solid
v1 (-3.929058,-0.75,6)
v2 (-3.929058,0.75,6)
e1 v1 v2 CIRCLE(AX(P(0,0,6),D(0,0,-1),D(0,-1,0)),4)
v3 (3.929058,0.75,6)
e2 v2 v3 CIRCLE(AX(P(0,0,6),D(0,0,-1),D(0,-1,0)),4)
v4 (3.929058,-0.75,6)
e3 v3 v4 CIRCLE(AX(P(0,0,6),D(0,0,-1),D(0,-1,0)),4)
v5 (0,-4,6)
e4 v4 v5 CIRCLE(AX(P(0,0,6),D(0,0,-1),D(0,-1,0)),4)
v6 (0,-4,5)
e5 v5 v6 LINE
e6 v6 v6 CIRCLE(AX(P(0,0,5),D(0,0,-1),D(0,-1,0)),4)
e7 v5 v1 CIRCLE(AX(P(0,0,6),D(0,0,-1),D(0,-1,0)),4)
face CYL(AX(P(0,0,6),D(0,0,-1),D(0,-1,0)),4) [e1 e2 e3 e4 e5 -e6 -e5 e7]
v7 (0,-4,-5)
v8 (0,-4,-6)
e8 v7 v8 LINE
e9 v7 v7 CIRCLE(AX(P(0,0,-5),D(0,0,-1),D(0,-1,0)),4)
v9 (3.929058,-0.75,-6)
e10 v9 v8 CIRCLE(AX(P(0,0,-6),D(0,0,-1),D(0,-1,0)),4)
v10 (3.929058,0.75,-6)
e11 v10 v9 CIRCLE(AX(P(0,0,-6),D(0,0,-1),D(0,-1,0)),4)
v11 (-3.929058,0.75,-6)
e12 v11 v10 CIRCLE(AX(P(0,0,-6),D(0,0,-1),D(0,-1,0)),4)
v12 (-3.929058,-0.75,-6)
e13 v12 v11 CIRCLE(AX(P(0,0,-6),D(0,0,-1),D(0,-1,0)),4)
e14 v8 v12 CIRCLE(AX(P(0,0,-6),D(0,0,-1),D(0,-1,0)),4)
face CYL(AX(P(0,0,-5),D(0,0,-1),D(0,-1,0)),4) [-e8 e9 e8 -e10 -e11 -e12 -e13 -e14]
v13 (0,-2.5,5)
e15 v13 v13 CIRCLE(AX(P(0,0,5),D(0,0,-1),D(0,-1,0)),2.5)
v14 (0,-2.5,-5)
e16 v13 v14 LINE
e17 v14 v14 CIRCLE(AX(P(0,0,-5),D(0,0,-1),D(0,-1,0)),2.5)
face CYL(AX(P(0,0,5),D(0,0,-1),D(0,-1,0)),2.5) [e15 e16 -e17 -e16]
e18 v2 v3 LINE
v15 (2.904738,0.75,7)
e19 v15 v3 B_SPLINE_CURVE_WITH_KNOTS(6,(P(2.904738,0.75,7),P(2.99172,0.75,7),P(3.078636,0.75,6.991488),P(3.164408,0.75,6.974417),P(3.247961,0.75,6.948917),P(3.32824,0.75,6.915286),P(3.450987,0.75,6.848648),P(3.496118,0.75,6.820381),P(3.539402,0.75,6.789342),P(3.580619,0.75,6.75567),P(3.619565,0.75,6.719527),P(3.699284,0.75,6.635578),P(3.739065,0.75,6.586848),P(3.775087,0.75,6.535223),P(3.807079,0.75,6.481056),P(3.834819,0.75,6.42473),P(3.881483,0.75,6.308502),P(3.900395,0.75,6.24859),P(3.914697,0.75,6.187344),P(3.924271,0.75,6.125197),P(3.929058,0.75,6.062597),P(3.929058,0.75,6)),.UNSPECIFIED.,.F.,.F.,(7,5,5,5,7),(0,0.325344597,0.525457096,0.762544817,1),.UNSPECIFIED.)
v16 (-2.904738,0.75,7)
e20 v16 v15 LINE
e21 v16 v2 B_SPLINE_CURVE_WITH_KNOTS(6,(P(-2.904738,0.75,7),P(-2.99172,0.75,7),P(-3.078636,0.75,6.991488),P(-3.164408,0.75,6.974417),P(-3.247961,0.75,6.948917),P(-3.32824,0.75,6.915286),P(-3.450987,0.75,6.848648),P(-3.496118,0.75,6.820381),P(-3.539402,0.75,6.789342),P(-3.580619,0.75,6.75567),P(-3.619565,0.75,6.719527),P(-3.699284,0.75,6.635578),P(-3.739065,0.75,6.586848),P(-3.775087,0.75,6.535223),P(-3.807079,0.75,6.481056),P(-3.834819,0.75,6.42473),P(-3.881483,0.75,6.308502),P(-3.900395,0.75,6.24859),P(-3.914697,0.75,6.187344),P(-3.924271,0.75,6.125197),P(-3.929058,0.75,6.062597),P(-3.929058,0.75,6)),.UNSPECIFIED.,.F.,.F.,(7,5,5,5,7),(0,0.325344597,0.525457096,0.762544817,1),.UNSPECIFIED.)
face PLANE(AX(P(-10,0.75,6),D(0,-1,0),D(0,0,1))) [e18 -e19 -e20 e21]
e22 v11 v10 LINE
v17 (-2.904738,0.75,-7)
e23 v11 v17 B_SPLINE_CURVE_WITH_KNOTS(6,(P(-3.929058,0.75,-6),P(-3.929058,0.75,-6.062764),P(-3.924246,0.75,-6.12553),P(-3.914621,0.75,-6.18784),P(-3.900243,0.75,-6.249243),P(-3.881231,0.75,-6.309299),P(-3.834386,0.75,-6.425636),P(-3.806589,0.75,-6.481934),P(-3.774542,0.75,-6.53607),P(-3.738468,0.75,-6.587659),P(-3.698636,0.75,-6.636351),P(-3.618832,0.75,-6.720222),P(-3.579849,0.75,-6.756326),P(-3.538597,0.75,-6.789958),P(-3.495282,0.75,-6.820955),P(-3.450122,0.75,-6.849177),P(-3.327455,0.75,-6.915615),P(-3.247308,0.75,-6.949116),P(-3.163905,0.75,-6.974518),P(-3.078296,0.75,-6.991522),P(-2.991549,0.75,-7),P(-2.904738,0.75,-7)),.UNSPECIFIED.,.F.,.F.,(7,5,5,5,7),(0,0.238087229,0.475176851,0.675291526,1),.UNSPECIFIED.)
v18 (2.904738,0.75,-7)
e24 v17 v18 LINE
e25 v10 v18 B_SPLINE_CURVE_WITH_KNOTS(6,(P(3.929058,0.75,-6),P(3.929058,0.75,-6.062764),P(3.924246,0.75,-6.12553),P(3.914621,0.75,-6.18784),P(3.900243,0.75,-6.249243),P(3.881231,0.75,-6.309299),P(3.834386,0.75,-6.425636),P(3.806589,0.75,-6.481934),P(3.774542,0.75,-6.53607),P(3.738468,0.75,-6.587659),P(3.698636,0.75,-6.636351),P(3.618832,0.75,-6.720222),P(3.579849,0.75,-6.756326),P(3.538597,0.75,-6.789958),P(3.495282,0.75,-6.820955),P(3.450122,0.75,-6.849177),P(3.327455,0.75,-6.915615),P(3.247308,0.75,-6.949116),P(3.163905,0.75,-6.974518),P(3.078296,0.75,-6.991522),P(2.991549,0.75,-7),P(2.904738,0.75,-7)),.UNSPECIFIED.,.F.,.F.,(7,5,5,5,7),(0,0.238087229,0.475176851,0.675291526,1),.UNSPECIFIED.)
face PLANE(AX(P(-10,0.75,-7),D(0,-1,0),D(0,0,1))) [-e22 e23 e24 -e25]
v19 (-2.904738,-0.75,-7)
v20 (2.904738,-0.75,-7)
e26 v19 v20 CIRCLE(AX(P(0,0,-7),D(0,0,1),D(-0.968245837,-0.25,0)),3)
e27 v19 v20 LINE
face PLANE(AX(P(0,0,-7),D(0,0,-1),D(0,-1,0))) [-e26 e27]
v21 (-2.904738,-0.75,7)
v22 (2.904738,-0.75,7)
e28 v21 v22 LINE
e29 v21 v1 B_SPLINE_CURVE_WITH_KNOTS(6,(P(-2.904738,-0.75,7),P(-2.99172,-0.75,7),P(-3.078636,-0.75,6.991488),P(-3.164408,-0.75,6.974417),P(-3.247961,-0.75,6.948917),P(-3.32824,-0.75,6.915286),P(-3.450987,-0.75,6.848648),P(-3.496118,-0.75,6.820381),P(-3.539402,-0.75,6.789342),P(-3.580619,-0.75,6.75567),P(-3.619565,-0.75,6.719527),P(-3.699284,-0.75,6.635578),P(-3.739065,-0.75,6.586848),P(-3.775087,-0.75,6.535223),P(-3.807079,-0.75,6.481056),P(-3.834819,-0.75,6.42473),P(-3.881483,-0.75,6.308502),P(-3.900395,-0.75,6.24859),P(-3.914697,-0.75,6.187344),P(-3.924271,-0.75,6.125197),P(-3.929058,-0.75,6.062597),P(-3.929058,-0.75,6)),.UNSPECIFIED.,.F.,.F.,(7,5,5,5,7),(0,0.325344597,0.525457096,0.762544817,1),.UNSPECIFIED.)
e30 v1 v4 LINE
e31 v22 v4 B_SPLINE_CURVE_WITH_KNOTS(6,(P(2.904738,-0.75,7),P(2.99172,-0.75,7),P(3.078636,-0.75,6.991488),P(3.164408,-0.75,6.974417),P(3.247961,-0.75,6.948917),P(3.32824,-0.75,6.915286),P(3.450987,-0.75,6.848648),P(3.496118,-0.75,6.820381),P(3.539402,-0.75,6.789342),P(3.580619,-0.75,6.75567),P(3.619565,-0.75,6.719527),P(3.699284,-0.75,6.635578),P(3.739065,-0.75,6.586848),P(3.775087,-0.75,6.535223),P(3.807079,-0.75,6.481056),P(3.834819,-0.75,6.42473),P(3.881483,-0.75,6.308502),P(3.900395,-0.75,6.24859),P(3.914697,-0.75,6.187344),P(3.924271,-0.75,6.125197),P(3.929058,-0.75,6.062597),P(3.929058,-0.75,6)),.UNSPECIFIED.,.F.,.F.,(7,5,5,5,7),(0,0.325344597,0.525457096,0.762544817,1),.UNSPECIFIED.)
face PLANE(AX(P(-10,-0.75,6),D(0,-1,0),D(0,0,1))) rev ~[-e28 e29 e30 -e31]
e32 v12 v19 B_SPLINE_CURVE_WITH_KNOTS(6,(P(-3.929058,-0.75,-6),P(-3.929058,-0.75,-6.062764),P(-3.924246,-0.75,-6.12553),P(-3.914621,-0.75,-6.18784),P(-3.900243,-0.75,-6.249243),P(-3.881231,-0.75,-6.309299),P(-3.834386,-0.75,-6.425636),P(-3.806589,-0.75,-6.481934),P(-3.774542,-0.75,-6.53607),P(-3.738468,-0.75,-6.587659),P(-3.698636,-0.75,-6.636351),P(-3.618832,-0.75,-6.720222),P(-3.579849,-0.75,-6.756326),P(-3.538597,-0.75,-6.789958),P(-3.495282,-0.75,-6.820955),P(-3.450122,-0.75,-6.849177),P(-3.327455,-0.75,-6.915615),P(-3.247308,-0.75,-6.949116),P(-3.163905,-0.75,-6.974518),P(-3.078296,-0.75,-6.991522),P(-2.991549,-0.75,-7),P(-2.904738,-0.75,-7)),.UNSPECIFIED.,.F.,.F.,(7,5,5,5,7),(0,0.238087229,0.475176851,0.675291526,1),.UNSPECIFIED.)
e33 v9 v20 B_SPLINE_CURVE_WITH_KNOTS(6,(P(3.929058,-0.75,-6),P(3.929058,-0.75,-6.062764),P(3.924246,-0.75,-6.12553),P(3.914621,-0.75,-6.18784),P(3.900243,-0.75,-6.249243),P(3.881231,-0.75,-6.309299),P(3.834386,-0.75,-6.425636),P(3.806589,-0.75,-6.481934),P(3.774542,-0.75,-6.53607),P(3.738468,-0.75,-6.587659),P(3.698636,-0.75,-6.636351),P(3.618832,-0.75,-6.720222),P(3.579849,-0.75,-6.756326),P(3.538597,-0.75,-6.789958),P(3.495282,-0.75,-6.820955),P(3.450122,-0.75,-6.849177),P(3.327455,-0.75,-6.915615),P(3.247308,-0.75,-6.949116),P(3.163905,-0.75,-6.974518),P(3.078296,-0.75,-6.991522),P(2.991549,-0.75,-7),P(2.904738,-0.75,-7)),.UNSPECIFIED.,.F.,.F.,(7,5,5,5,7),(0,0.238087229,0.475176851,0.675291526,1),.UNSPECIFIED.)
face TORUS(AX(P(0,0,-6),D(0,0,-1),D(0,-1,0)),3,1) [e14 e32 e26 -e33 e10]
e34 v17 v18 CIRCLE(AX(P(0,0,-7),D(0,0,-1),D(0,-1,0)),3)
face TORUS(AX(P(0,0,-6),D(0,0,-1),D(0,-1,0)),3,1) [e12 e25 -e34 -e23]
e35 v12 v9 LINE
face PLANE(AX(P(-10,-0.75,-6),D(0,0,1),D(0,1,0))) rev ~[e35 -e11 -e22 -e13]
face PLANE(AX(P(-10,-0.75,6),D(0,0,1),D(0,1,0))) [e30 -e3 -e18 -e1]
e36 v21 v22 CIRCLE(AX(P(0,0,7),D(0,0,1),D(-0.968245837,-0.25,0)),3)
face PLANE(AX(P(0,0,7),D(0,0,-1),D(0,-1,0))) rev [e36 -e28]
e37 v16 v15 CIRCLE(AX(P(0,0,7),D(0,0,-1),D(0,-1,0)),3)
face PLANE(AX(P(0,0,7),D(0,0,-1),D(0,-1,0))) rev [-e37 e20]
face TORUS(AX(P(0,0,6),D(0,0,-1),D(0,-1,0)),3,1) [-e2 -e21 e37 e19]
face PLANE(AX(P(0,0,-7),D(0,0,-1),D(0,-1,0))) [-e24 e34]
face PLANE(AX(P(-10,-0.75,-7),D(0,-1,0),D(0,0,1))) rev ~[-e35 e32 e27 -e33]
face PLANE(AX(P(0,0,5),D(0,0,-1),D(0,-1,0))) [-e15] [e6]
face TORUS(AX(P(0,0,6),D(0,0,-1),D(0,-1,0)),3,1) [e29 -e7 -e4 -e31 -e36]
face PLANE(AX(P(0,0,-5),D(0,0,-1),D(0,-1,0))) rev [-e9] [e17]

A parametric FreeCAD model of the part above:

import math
import FreeCAD as App
import Part
import Sketcher
from FreeCAD import Vector
Q = App.Units.Quantity


def add_polygon(sketch, points):
    """Adds a closed chain of lines whose ends are joined by coincident constraints."""
    first, n = sketch.GeometryCount, len(points)
    for a, b in zip(points, points[1:] + points[:1]):
        sketch.addGeometry(Part.LineSegment(App.Vector(*a, 0), App.Vector(*b, 0)), False)
    for i in range(n):
        sketch.addConstraint(Sketcher.Constraint("Coincident", first + i, 2, first + (i + 1) % n, 1))

doc = App.newDocument("Part")
params = doc.addObject("Spreadsheet::Sheet", "Params")
for row, (alias, value) in enumerate([
    ("sketch1_radius", "1 mm"),
    ("sketch1_width", "3 mm"),
    ("sketch1_height", "14 mm"),
    ("sketch1_height2", "1 mm"),
    ("sketch1_width2", "1.5 mm"),
    ("revolution_angle", "360 deg"),
    ("sketch2_height", "1 mm"),
    ("sketch2_width", "1.5 mm"),
], start=1):
    params.set(f"A{row}", alias)
    params.set(f"B{row}", "=" + value)
    params.setAlias(f"B{row}", alias)

body = doc.addObject("PartDesign::Body", "Body")

# Sketch on YZ plane
sketch1 = body.newObject("Sketcher::SketchObject", "Sketch")
sketch1.AttachmentSupport = (doc.getObject("YZ_Plane"), [""])
sketch1.MapMode = "FlatFace"
sketch1.addGeometry([
    Part.LineSegment(Vector(3, 7, 0), Vector(0, 7, 0)),  # 0
    Part.LineSegment(Vector(0, 7, 0), Vector(0, -7, 0)),  # 1
    Part.LineSegment(Vector(0, -7, 0), Vector(3, -7, 0)),  # 2
    Part.ArcOfCircle(Part.Circle(Vector(3, -6, 0), Vector(0, 0, 1), 1), math.radians(-90), math.radians(0)),  # 3
    Part.LineSegment(Vector(4, -6, 0), Vector(4, -5, 0)),  # 4
    Part.LineSegment(Vector(4, -5, 0), Vector(2.5, -5, 0)),  # 5
    Part.LineSegment(Vector(2.5, -5, 0), Vector(2.5, 5, 0)),  # 6
    Part.LineSegment(Vector(2.5, 5, 0), Vector(4, 5, 0)),  # 7
    Part.LineSegment(Vector(4, 5, 0), Vector(4, 6, 0)),  # 8
    Part.ArcOfCircle(Part.Circle(Vector(3, 6, 0), Vector(0, 0, 1), 1), math.radians(0), math.radians(90)),  # 9
], False)
sketch1.addConstraint([
    Sketcher.Constraint("Coincident", 0, 2, 1, 1),
    Sketcher.Constraint("Coincident", 1, 2, 2, 1),
    Sketcher.Constraint("Tangent", 2, 2, 3, 1),
    Sketcher.Constraint("Tangent", 3, 2, 4, 1),
    Sketcher.Constraint("Coincident", 4, 2, 5, 1),
    Sketcher.Constraint("Coincident", 5, 2, 6, 1),
    Sketcher.Constraint("Coincident", 6, 2, 7, 1),
    Sketcher.Constraint("Coincident", 7, 2, 8, 1),
    Sketcher.Constraint("Tangent", 8, 2, 9, 1),
    Sketcher.Constraint("Tangent", 9, 2, 0, 1),
    Sketcher.Constraint("Horizontal", 0),
    Sketcher.Constraint("Vertical", 1),
    Sketcher.Constraint("Horizontal", 2),
    Sketcher.Constraint("Vertical", 4),
    Sketcher.Constraint("Horizontal", 5),
    Sketcher.Constraint("Vertical", 6),
    Sketcher.Constraint("Horizontal", 7),
    Sketcher.Constraint("Vertical", 8),
    Sketcher.Constraint("Equal", 3, 9),
    Sketcher.Constraint("Symmetric", 0, 2, 1, 2, -1, 1),
    Sketcher.Constraint("Symmetric", 4, 2, 7, 2, -1),
    Sketcher.Constraint("Radius", 3, Q("1 mm")),
    Sketcher.Constraint("DistanceX", 0, 2, 0, 1, Q("3 mm")),
    Sketcher.Constraint("DistanceY", 1, 2, 1, 1, Q("14 mm")),
    Sketcher.Constraint("DistanceY", 4, 1, 4, 2, Q("1 mm")),
    Sketcher.Constraint("DistanceX", 5, 2, 5, 1, Q("1.5 mm")),
])
sketch1.setExpression("Constraints[21]", "Params.sketch1_radius")
sketch1.setExpression("Constraints[22]", "Params.sketch1_width")
sketch1.setExpression("Constraints[23]", "Params.sketch1_height")
sketch1.setExpression("Constraints[24]", "Params.sketch1_height2")
sketch1.setExpression("Constraints[25]", "Params.sketch1_width2")
revolution = body.newObject("PartDesign::Revolution", "Revolution")
revolution.Profile = sketch1
revolution.ReferenceAxis = (sketch1, ["V_Axis"])
revolution.setExpression("Angle", "Params.revolution_angle")

# Sketch on YZ plane
sketch2 = body.newObject("Sketcher::SketchObject", "Sketch001")
sketch2.AttachmentSupport = (doc.getObject("YZ_Plane"), [""])
sketch2.MapMode = "FlatFace"
add_polygon(sketch2, [(-0.8, 7), (-0.8, 6), (0.8, 6), (0.8, 7)])  # lines 0-3
add_polygon(sketch2, [(-0.8, -6), (-0.8, -7), (0.8, -7), (0.8, -6)])  # lines 4-7
sketch2.addConstraint([
    Sketcher.Constraint("Vertical", 0),
    Sketcher.Constraint("Horizontal", 1),
    Sketcher.Constraint("Vertical", 2),
    Sketcher.Constraint("Horizontal", 3),
    Sketcher.Constraint("Vertical", 4),
    Sketcher.Constraint("Horizontal", 5),
    Sketcher.Constraint("Vertical", 6),
    Sketcher.Constraint("Horizontal", 7),
    Sketcher.Constraint("Symmetric", 2, 2, 4, 2, -1, 1),
    Sketcher.Constraint("Symmetric", 0, 2, 6, 2, -1, 1),
    Sketcher.Constraint("Vertical", 3, 2, 4, 2),
    Sketcher.Constraint("DistanceY", 0, 2, 0, 1, Q("1 mm")),
    Sketcher.Constraint("DistanceX", 1, 1, 1, 2, Q("1.5 mm")),
    Sketcher.Constraint("DistanceY", -1, 1, 0, 2, Q("6 mm")),
])
sketch2.setExpression("Constraints[19]", "Params.sketch2_height")
sketch2.setExpression("Constraints[20]", "Params.sketch2_width")
pocket1 = body.newObject("PartDesign::Pocket", "Pocket")
pocket1.Profile = sketch2
pocket1.Type = "ThroughAll"
pocket1.Midplane = True

doc.recompute()
